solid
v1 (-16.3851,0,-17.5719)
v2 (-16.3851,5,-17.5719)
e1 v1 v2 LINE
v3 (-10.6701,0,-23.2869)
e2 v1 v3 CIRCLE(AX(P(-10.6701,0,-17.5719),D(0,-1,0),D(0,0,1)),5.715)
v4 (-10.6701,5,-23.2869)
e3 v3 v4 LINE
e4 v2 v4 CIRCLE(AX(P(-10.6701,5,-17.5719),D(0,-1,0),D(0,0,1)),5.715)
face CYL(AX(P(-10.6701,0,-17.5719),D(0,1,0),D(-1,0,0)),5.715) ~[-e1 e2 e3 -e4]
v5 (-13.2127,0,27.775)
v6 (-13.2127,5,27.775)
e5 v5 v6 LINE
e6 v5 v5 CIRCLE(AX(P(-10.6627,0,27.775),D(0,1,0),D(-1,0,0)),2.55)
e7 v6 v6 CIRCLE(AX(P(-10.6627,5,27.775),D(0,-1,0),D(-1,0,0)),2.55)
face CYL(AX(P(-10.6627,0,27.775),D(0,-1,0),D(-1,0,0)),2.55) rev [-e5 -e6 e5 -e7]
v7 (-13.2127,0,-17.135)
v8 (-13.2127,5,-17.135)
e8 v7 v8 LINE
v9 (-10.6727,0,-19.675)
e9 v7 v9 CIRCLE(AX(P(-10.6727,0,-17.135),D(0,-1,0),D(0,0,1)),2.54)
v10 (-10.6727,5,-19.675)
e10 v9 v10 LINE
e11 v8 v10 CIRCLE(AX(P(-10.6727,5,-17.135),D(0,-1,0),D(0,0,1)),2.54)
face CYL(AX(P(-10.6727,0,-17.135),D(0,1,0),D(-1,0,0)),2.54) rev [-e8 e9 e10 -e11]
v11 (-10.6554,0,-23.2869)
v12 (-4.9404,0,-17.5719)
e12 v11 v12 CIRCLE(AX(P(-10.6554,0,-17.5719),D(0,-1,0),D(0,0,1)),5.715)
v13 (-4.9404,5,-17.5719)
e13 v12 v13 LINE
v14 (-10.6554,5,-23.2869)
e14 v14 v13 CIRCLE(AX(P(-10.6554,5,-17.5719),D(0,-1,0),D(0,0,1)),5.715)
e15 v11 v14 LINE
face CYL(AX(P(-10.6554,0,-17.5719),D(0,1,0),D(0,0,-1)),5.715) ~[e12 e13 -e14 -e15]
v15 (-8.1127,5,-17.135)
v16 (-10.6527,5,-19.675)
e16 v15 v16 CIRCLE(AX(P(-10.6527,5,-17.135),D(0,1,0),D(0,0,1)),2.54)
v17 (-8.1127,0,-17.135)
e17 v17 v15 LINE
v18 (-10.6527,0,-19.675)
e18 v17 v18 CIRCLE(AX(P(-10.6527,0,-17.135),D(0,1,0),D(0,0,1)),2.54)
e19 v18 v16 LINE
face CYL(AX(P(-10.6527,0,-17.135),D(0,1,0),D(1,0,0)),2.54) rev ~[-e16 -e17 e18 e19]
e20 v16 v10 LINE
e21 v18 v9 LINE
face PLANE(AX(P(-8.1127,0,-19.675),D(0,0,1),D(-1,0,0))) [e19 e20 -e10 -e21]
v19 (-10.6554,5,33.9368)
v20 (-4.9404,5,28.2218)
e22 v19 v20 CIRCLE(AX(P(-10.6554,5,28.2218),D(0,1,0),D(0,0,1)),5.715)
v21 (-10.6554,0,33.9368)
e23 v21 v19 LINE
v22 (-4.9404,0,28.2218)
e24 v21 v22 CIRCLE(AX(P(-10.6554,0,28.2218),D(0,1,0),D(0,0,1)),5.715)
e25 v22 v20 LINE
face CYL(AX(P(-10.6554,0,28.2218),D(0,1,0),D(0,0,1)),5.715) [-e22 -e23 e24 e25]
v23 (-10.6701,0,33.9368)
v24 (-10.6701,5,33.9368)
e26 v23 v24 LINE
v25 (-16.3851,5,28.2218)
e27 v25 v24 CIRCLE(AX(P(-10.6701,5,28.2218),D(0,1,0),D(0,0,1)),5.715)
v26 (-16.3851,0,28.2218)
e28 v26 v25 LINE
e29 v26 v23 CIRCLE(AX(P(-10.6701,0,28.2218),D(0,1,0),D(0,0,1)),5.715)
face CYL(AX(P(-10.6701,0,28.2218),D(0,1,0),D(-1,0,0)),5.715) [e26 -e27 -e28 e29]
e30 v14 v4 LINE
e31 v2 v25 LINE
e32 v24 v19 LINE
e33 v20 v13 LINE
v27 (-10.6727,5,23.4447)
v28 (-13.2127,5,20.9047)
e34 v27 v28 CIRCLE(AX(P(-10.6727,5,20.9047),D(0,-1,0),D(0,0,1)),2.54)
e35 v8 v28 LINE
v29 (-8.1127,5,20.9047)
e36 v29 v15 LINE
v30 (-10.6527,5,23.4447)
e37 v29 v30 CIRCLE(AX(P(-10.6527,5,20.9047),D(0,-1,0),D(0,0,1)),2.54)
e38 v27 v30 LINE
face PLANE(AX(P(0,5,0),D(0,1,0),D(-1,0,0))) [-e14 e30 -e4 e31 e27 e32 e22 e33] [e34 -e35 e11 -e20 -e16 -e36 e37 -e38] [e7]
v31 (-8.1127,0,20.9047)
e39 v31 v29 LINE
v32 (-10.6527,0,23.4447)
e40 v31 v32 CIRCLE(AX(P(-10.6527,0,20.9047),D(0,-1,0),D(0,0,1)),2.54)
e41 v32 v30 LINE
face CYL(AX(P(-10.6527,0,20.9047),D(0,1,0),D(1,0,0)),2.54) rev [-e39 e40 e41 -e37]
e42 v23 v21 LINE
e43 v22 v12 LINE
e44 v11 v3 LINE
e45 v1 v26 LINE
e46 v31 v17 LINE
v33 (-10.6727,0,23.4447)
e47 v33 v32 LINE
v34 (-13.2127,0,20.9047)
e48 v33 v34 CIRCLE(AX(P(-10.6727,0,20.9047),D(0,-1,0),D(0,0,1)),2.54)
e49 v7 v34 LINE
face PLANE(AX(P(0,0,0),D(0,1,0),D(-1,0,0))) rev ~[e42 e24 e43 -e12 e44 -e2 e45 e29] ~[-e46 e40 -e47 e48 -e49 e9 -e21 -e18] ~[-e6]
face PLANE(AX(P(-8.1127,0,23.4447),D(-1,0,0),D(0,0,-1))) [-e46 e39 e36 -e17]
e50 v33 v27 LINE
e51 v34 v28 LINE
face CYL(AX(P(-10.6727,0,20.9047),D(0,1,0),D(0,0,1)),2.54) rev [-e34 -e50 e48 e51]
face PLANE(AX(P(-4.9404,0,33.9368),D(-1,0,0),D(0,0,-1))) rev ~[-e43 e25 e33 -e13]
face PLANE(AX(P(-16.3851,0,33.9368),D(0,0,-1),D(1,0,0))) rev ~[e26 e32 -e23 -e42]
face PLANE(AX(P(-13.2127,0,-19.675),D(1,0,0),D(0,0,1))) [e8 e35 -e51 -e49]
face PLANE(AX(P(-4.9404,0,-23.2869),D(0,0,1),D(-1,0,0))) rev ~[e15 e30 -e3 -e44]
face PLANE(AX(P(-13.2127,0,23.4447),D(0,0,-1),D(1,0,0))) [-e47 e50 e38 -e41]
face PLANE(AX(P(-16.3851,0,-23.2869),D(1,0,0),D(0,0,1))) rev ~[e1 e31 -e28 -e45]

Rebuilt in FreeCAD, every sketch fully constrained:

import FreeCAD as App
import Part
import Sketcher
from FreeCAD import Vector
Q = App.Units.Quantity


def edges_at(feature, points):
    """Names of the edges that pass closest to the given points."""
    edges = feature.Shape.Edges
    near = lambda p: min(range(len(edges)), key=lambda i: edges[i].distToShape(Part.Vertex(*p))[0])
    return sorted({f"Edge{near(p) + 1}" for p in points})


def add_polygon(sketch, points):
    """Adds a closed chain of lines whose ends are joined by coincident constraints."""
    first, n = sketch.GeometryCount, len(points)
    for a, b in zip(points, points[1:] + points[:1]):
        sketch.addGeometry(Part.LineSegment(App.Vector(*a, 0), App.Vector(*b, 0)), False)
    for i in range(n):
        sketch.addConstraint(Sketcher.Constraint("Coincident", first + i, 2, first + (i + 1) % n, 1))

doc = App.newDocument("Part")
body = doc.addObject("PartDesign::Body", "Body")

# Sketch on XZ plane
sketch1 = body.newObject("Sketcher::SketchObject", "Sketch")
sketch1.AttachmentSupport = (doc.getObject("XZ_Plane"), [""])
sketch1.MapMode = "FlatFace"
add_polygon(sketch1, [(-16.3851, -23.2869), (-16.3851, 33.9368), (-4.9404, 33.9368), (-4.9404, -23.2869)])  # lines 0-3
add_polygon(sketch1, [(-8.1127, -19.675), (-8.1127, 23.4447), (-13.2127, 23.4447), (-13.2127, -19.675)])  # lines 4-7
sketch1.addGeometry(Part.Circle(Vector(-10.6627, 27.775, 0), Vector(0, 0, 1), 2.55), False)  # 8
sketch1.addConstraint(Sketcher.Constraint("Vertical", 0))
sketch1.addConstraint(Sketcher.Constraint("Horizontal", 1))
sketch1.addConstraint(Sketcher.Constraint("Vertical", 2))
sketch1.addConstraint(Sketcher.Constraint("Horizontal", 3))
sketch1.addConstraint(Sketcher.Constraint("Vertical", 4))
sketch1.addConstraint(Sketcher.Constraint("Horizontal", 5))
sketch1.addConstraint(Sketcher.Constraint("Vertical", 6))
sketch1.addConstraint(Sketcher.Constraint("Horizontal", 7))
sketch1.addConstraint(Sketcher.Constraint("Diameter", 8, Q("5.1 mm")))
sketch1.addConstraint(Sketcher.Constraint("DistanceX", 5, 2, 5, 1, Q("5.1 mm")))
sketch1.addConstraint(Sketcher.Constraint("DistanceX", 8, 3, 4, 2, Q("2.55 mm")))
sketch1.addConstraint(Sketcher.Constraint("DistanceX", 1, 1, 1, 2, Q("11.4447 mm")))
sketch1.addConstraint(Sketcher.Constraint("DistanceY", 0, 1, 0, 2, Q("57.2237 mm")))
sketch1.addConstraint(Sketcher.Constraint("DistanceY", 3, 2, 6, 2, Q("3.612 mm")))
sketch1.addConstraint(Sketcher.Constraint("DistanceX", 4, 2, 1, 2, Q("3.1723 mm")))
sketch1.addConstraint(Sketcher.Constraint("DistanceY", 6, 2, 8, 3, Q("47.45 mm")))
sketch1.addConstraint(Sketcher.Constraint("DistanceY", 4, 1, 4, 2, Q("43.1197 mm")))
sketch1.addConstraint(Sketcher.Constraint("DistanceY", -1, 1, 8, 3, Q("27.775 mm")))
sketch1.addConstraint(Sketcher.Constraint("DistanceX", 0, 2, -1, 1, Q("16.385 mm")))
pad1 = body.newObject("PartDesign::Pad", "Pad")
pad1.Profile = sketch1
pad1.Length = 5
pad1.Reversed = True
doc.recompute()

fillet = body.newObject("PartDesign::Fillet", "Fillet")
fillet.Base = (pad1, edges_at(pad1, [
    (-16.385, 2.5, 33.937),
    (-4.94, 2.5, 33.937),
    (-16.385, 2.5, -23.287),
    (-4.94, 2.5, -23.287),
]))
fillet.Radius = 5.715
doc.recompute()

fillet2 = body.newObject("PartDesign::Fillet", "Fillet001")
fillet2.Base = (fillet, edges_at(fillet, [
    (-13.213, 2.5, 23.445),
    (-8.113, 2.5, 23.445),
    (-8.113, 2.5, -19.675),
    (-13.213, 2.5, -19.675),
]))
fillet2.Radius = 2.54

doc.recompute()
